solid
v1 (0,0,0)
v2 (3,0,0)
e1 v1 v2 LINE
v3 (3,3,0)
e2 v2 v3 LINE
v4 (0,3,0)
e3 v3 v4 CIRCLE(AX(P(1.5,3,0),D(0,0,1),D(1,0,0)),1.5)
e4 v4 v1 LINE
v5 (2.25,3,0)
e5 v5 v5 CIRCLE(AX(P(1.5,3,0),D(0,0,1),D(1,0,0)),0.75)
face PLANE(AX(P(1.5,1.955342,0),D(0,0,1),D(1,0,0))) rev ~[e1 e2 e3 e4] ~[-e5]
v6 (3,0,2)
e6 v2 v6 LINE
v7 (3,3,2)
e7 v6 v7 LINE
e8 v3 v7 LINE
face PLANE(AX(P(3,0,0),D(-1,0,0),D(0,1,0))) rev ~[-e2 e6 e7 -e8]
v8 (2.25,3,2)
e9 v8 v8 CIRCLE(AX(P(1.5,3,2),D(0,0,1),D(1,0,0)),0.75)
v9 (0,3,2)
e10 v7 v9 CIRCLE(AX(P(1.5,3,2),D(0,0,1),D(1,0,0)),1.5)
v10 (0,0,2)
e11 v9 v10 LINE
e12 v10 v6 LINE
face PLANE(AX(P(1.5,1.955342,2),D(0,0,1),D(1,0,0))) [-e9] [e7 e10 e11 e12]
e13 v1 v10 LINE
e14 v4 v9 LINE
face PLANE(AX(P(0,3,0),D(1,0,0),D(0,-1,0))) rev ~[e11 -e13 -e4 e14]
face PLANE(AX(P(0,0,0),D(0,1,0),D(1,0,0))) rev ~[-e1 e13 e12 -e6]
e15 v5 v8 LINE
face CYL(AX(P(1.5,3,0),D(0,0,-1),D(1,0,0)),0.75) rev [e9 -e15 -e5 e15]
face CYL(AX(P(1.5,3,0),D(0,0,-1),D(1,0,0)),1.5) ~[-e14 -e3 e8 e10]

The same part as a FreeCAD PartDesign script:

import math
import FreeCAD as App
import Part
import Sketcher
from FreeCAD import Vector
Q = App.Units.Quantity

doc = App.newDocument("Part")
params = doc.addObject("Spreadsheet::Sheet", "Params")
for row, (alias, value) in enumerate([
    ("sketch1_diameter", "1.5 mm"),
    ("sketch1_radius", "1.5 mm"),
    ("pad1_length", "2 mm"),
], start=1):
    params.set(f"A{row}", alias)
    params.set(f"B{row}", "=" + value)
    params.setAlias(f"B{row}", alias)

body = doc.addObject("PartDesign::Body", "Body")

# Sketch on XY plane
sketch1 = body.newObject("Sketcher::SketchObject", "Sketch")
sketch1.AttachmentSupport = (doc.getObject("XY_Plane"), [""])
sketch1.MapMode = "FlatFace"
sketch1.addGeometry([
    Part.LineSegment(Vector(0, 3, 0), Vector(0, 0, 0)),  # 0
    Part.LineSegment(Vector(0, 0, 0), Vector(3, 0, 0)),  # 1
    Part.LineSegment(Vector(3, 0, 0), Vector(3, 3, 0)),  # 2
    Part.ArcOfCircle(Part.Circle(Vector(1.5, 3, 0), Vector(0, 0, 1), 1.5), math.radians(0), math.radians(180)),  # 3
    Part.Circle(Vector(1.5, 3, 0), Vector(0, 0, 1), 0.8),  # 4
], False)
sketch1.addConstraint([
    Sketcher.Constraint("Coincident", 0, 2, 1, 1),
    Sketcher.Constraint("Coincident", 1, 2, 2, 1),
    Sketcher.Constraint("Tangent", 2, 2, 3, 1),
    Sketcher.Constraint("Tangent", 3, 2, 0, 1),
    Sketcher.Constraint("Vertical", 0),
    Sketcher.Constraint("Horizontal", 1),
    Sketcher.Constraint("Vertical", 2),
    Sketcher.Constraint("Coincident", 0, 2, -1, 1),
    Sketcher.Constraint("Coincident", 4, 3, 3, 3),
    Sketcher.Constraint("Equal", 1, 0),
    Sketcher.Constraint("Diameter", 4, Q("1.5 mm")),
    Sketcher.Constraint("Radius", 3, Q("1.5 mm")),
])
sketch1.setExpression("Constraints[10]", "Params.sketch1_diameter")
sketch1.setExpression("Constraints[11]", "Params.sketch1_radius")
pad1 = body.newObject("PartDesign::Pad", "Pad")
pad1.Profile = sketch1
pad1.setExpression("Length", "Params.pad1_length")

doc.recompute()
